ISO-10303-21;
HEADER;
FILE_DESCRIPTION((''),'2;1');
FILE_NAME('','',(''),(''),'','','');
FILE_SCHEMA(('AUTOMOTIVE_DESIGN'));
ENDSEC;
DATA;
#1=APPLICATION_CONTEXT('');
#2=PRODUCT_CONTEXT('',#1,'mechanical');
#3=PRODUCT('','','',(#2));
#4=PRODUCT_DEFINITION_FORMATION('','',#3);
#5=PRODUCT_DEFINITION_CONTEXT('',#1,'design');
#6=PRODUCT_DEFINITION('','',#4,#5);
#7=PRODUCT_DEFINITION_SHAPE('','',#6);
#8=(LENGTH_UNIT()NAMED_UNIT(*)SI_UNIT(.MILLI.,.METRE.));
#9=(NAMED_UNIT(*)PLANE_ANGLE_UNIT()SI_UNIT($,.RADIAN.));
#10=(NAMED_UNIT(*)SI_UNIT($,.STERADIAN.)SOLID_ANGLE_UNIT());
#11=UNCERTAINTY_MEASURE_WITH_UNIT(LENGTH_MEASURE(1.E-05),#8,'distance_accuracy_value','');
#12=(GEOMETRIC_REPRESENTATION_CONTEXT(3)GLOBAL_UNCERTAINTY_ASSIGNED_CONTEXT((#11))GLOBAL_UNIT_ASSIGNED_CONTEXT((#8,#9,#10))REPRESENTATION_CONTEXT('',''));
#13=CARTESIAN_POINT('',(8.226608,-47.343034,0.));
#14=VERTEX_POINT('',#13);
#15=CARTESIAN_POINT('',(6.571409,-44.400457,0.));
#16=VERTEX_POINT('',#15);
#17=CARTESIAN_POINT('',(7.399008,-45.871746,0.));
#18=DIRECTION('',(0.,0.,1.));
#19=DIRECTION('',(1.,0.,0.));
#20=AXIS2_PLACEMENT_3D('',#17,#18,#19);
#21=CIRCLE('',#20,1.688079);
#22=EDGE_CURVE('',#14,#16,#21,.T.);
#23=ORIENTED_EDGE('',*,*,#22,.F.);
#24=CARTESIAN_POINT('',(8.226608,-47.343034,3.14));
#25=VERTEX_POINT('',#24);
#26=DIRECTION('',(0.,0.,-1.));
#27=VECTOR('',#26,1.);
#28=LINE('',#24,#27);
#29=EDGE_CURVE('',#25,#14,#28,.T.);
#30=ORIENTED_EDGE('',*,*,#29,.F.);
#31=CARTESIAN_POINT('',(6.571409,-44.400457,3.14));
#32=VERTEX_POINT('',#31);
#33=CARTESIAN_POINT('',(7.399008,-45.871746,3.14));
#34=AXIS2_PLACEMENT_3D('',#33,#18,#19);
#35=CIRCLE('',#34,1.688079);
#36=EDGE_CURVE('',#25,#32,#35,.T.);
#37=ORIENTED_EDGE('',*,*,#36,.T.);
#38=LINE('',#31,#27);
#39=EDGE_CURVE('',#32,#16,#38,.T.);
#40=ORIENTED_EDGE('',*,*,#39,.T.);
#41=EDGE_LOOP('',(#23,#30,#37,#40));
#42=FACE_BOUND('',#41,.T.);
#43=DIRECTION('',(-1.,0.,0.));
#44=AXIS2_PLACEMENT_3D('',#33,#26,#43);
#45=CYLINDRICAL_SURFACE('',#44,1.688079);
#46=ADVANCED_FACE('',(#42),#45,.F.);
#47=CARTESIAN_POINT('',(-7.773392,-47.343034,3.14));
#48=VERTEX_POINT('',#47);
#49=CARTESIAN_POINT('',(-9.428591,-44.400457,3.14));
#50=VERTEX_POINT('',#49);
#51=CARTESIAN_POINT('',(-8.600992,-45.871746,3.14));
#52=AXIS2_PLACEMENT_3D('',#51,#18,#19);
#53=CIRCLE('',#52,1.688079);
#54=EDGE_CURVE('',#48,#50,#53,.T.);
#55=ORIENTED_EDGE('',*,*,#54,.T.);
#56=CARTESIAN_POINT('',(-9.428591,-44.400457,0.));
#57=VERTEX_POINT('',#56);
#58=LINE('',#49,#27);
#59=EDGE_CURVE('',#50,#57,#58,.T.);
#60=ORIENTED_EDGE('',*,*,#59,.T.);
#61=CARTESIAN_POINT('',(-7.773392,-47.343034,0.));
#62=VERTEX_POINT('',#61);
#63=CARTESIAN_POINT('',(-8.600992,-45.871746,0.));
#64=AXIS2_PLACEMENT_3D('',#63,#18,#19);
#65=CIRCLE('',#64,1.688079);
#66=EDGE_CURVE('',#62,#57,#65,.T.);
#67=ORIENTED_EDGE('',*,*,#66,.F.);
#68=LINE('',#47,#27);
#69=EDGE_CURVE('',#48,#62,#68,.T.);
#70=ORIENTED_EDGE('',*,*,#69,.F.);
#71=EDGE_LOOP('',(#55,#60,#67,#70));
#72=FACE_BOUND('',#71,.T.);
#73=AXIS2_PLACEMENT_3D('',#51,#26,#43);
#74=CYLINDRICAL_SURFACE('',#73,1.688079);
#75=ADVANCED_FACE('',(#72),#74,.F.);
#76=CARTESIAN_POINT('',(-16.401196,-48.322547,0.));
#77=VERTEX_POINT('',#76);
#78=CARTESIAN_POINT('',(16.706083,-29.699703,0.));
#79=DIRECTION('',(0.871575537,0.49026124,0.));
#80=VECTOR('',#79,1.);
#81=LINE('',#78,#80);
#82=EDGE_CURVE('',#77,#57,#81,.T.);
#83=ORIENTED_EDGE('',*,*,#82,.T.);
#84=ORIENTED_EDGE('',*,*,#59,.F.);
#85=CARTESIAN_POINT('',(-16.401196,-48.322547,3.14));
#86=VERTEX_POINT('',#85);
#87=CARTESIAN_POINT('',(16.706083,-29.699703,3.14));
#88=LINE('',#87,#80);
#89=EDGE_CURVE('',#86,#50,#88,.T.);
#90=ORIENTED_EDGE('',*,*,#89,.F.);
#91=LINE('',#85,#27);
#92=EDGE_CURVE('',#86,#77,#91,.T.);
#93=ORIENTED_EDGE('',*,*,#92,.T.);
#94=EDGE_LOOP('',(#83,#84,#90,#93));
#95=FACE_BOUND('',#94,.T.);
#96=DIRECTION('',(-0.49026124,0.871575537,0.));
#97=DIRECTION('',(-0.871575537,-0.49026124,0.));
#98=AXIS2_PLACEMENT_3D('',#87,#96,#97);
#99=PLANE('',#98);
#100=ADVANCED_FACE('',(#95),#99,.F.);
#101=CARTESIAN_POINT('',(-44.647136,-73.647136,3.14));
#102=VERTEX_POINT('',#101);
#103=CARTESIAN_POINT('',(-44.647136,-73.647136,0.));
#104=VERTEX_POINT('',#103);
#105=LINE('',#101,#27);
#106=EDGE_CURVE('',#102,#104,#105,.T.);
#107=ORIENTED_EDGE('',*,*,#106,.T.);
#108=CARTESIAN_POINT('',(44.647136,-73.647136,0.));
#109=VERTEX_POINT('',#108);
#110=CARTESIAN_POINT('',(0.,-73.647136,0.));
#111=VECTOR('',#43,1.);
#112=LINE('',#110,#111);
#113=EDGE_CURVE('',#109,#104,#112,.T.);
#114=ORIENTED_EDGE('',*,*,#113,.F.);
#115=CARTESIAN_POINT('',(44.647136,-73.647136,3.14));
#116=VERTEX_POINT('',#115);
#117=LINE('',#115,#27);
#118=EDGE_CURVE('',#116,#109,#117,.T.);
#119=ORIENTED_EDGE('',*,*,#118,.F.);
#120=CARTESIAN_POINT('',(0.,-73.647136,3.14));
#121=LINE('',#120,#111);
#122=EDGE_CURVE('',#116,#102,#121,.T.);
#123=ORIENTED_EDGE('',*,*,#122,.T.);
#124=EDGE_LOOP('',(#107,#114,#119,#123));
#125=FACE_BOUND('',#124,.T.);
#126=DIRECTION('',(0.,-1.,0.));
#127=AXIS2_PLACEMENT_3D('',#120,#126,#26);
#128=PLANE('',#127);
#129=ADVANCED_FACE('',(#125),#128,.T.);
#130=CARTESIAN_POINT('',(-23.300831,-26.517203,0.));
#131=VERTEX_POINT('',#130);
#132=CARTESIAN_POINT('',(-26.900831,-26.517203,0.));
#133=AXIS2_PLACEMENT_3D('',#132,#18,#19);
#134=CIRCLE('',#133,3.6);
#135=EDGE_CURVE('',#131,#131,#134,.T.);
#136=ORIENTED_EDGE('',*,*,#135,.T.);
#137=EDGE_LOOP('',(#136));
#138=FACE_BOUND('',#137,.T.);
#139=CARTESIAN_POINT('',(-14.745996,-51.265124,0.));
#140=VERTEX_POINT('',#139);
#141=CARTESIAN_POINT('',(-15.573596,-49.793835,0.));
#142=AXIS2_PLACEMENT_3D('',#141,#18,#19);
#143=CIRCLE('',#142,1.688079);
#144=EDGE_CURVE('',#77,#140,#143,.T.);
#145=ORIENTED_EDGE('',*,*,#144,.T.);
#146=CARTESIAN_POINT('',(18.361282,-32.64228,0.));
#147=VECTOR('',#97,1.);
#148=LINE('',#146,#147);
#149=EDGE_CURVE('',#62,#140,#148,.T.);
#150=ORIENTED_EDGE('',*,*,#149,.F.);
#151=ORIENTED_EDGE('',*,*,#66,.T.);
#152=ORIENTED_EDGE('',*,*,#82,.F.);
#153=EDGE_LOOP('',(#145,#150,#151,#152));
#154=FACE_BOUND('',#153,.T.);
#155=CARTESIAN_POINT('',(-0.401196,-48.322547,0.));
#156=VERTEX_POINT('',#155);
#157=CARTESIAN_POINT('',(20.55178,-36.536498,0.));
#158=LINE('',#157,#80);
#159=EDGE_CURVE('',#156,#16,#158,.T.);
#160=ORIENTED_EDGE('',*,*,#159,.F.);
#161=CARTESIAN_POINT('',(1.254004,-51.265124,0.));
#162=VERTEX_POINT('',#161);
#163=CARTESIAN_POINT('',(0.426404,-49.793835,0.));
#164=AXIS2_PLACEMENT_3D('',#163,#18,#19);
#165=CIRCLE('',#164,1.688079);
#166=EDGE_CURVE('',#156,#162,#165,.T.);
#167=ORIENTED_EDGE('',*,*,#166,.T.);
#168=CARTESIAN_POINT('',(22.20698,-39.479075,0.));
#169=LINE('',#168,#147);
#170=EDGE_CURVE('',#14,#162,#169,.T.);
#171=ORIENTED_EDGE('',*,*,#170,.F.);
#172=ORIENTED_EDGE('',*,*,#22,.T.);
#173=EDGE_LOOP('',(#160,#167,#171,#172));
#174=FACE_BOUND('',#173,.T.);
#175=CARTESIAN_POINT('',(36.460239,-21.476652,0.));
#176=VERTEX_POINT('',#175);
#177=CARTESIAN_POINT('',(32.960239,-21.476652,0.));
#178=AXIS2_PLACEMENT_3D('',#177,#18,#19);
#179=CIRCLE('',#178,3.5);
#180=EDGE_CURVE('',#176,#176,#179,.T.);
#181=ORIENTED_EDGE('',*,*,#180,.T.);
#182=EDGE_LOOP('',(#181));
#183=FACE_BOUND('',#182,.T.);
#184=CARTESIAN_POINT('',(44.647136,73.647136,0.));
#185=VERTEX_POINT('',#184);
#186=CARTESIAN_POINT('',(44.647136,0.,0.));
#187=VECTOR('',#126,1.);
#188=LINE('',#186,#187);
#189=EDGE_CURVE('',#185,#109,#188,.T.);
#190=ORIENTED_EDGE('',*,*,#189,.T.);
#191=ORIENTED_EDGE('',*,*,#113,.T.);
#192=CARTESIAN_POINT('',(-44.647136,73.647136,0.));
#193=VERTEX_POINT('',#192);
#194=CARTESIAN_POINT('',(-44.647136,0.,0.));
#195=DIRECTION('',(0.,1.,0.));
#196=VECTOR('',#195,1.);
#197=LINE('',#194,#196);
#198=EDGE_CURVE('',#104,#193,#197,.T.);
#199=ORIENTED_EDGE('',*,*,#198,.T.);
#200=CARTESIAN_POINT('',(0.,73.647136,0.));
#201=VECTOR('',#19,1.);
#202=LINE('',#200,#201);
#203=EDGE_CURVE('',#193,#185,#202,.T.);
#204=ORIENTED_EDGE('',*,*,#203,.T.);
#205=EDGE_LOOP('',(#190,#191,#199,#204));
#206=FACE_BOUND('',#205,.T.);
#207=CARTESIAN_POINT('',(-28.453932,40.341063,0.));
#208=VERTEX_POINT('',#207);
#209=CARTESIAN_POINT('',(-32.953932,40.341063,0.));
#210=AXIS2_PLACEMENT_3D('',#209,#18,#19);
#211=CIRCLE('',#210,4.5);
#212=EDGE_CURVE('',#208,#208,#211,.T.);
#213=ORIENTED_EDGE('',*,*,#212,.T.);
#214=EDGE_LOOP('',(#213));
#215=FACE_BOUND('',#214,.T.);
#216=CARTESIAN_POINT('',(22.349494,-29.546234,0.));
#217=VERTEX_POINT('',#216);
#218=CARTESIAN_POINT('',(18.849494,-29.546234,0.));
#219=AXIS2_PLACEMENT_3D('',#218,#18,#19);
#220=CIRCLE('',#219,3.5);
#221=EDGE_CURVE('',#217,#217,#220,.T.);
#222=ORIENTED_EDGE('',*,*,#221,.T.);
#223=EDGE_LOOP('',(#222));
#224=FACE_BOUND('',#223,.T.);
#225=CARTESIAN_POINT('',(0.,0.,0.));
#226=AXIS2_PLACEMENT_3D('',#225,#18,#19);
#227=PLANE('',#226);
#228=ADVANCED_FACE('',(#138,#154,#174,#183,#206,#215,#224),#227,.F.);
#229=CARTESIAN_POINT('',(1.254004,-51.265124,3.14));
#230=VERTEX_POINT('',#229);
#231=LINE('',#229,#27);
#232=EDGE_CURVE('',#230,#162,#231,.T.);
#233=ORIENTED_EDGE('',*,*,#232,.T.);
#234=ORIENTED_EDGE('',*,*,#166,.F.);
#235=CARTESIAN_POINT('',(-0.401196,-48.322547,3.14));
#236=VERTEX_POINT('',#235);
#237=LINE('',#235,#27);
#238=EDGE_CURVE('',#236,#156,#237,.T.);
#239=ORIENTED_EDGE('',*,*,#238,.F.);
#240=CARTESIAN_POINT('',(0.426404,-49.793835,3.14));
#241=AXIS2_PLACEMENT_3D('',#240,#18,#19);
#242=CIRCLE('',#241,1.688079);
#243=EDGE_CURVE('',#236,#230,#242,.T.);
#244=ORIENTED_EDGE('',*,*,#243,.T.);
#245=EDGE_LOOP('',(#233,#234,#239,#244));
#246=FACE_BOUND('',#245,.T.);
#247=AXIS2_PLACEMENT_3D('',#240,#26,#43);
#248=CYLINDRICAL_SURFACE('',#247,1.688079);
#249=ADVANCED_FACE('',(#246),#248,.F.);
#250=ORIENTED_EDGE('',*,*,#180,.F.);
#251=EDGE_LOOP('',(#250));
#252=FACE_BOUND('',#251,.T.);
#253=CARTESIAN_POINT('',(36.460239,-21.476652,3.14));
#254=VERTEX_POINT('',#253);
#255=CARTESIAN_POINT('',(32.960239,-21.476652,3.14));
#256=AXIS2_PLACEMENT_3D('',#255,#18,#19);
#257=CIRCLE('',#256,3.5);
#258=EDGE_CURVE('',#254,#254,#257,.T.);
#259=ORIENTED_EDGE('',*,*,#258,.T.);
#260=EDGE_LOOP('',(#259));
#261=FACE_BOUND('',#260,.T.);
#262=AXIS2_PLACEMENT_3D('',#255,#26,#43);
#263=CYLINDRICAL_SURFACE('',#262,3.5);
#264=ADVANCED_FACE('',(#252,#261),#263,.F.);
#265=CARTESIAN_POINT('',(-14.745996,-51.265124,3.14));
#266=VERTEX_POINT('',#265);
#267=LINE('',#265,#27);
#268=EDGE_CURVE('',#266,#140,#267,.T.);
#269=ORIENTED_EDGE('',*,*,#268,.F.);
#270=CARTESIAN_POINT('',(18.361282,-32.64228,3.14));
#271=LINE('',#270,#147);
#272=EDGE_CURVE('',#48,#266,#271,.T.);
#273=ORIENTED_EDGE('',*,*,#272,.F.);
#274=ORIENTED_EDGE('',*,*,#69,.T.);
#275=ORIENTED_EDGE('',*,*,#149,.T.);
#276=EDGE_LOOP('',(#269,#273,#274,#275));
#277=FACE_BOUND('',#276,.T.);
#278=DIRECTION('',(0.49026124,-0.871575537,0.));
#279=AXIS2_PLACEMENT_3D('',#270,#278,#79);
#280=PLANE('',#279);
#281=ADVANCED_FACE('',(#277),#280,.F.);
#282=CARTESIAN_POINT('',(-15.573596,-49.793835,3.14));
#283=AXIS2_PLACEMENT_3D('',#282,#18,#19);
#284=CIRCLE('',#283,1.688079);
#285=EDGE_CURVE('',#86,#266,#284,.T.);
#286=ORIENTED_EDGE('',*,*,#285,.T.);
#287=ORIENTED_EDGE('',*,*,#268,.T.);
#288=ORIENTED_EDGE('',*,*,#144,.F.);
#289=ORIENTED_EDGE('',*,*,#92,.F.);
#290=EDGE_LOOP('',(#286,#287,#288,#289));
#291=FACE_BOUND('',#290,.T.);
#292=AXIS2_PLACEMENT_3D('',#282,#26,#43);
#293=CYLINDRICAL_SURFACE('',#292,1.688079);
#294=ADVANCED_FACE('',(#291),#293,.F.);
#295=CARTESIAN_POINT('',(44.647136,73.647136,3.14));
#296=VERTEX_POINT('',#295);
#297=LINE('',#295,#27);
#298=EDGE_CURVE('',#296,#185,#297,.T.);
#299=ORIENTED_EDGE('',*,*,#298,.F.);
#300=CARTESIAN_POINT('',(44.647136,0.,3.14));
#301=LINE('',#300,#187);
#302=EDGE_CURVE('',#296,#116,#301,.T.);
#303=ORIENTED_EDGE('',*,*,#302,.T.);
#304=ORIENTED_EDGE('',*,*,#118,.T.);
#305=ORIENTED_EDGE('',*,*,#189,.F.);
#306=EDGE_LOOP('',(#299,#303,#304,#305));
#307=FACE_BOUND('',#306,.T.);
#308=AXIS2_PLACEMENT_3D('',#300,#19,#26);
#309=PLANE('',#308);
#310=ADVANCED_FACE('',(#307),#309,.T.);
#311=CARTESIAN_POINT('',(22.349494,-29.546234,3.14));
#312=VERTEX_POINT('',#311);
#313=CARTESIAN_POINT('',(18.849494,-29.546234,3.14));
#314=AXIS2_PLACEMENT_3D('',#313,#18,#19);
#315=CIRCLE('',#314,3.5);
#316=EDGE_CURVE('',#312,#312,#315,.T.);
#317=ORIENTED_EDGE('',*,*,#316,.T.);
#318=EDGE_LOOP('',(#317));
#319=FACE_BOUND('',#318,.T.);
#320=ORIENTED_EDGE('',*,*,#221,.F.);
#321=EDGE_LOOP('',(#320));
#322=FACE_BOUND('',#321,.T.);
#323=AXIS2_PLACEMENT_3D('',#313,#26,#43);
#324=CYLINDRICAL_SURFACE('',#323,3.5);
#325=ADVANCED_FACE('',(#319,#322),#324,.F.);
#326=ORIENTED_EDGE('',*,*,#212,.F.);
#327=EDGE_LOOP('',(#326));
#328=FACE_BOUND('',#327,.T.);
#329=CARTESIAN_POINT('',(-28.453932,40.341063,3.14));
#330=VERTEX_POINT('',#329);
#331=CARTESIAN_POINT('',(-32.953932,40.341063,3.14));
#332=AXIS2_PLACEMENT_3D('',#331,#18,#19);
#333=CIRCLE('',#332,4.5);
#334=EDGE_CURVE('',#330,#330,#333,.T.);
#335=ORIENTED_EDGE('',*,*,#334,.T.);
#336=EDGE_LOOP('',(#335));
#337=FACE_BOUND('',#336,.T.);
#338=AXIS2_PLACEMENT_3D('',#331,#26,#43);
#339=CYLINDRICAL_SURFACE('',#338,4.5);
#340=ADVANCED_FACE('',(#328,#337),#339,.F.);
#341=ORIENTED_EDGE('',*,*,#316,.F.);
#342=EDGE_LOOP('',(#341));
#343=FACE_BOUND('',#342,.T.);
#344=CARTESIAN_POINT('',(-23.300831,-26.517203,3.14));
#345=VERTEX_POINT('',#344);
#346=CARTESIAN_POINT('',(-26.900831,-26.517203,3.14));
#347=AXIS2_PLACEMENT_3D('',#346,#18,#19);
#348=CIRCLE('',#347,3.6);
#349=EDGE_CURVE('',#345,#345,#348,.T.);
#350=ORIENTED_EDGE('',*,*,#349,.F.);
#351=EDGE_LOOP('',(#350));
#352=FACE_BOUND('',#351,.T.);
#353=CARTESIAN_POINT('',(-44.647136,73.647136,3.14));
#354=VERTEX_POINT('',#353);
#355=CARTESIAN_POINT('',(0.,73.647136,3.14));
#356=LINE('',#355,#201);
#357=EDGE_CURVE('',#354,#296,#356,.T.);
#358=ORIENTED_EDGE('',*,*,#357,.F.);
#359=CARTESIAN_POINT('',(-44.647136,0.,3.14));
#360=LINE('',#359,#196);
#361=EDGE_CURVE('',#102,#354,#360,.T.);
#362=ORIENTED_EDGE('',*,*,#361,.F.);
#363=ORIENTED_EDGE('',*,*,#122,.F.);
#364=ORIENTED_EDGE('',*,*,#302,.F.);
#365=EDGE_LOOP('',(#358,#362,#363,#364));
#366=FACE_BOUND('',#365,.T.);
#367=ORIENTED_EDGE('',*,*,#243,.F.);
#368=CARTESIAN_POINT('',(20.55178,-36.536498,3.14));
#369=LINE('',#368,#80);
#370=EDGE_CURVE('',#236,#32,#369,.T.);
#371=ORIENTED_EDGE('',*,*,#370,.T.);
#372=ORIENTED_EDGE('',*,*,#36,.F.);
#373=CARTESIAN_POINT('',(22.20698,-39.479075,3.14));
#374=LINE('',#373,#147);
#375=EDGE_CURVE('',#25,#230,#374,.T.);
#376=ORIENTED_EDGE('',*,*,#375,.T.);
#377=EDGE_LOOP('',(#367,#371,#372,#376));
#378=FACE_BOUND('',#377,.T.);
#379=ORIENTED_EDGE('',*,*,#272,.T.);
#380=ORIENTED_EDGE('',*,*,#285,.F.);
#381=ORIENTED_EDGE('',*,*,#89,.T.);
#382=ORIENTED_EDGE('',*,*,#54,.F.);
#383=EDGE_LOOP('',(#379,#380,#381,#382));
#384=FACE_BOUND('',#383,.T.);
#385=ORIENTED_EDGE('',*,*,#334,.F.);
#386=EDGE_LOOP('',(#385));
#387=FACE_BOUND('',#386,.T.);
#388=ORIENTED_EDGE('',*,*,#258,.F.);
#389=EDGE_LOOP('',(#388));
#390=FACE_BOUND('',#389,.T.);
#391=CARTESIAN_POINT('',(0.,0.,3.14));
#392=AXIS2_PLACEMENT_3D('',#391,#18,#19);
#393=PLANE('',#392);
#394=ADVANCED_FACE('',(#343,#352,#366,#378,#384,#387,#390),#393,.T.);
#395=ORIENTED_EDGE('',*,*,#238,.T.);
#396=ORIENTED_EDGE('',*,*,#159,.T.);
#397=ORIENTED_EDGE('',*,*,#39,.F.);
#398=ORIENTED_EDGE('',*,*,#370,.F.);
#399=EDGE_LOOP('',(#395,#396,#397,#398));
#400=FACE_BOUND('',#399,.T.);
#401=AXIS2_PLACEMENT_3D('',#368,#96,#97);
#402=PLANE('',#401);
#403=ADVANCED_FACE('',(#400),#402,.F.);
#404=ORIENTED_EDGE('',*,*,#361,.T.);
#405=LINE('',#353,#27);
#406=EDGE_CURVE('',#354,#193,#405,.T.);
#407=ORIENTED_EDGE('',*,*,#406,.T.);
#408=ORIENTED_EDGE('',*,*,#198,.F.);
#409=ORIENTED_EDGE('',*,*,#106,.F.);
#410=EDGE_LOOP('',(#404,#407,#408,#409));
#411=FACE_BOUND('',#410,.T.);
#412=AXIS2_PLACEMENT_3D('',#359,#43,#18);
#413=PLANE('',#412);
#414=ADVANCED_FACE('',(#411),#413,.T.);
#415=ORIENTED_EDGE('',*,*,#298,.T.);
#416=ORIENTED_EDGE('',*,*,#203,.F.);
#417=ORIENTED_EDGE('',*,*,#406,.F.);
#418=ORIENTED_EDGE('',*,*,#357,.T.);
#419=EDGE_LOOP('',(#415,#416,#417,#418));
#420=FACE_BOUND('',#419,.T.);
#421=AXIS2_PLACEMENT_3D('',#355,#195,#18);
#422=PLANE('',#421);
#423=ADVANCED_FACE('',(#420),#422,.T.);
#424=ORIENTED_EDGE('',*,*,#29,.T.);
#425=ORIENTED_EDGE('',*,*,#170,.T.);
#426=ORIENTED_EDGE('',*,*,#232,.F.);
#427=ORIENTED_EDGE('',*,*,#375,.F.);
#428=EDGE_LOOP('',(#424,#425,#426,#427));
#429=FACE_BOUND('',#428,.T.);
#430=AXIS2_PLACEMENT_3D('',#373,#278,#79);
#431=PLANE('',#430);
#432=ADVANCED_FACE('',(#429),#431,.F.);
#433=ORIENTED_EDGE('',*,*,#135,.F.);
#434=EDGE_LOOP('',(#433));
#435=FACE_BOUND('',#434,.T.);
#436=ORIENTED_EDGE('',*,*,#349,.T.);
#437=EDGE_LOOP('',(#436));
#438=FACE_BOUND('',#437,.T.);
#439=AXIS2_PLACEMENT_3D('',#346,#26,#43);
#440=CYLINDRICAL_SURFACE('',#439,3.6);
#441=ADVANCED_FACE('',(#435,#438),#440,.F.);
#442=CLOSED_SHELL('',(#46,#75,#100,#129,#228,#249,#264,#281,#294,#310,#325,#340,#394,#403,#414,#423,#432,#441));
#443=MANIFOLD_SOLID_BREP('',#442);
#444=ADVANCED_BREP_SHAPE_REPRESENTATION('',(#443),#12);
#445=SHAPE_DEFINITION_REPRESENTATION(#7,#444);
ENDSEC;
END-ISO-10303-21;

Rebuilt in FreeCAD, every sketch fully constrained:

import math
import FreeCAD as App
import Part
import Sketcher
from FreeCAD import Vector
Q = App.Units.Quantity

doc = App.newDocument("Part")
body = doc.addObject("PartDesign::Body", "Body")

sketch1 = body.newObject("Sketcher::SketchObject", "Sketch")
sketch1.AttachmentSupport = (doc.getObject("XY_Plane"), [""])
sketch1.MapMode = "FlatFace"
sketch1.addGeometry(Part.LineSegment(Vector(-44.6, 73.6, 0), Vector(-44.6, -73.6, 0)), False)
sketch1.addGeometry(Part.LineSegment(Vector(-44.6, -73.6, 0), Vector(44.6, -73.6, 0)), False)
sketch1.addGeometry(Part.LineSegment(Vector(44.6, -73.6, 0), Vector(44.6, 73.6, 0)), False)
sketch1.addGeometry(Part.LineSegment(Vector(44.6, 73.6, 0), Vector(-44.6, 73.6, 0)), False)
sketch1.addGeometry(Part.LineSegment(Vector(-7.8, -47.3, 0), Vector(-14.7, -51.3, 0)), False)
sketch1.addGeometry(Part.ArcOfCircle(Part.Circle(Vector(-15.6, -49.8, 0), Vector(0, 0, 1), 1.7), math.radians(119), math.radians(299)), False)
sketch1.addGeometry(Part.LineSegment(Vector(-16.4, -48.3, 0), Vector(-9.4, -44.4, 0)), False)
sketch1.addGeometry(Part.ArcOfCircle(Part.Circle(Vector(-8.6, -45.9, 0), Vector(0, 0, 1), 1.7), math.radians(-61), math.radians(119)), False)
sketch1.addGeometry(Part.LineSegment(Vector(8.2, -47.3, 0), Vector(1.3, -51.3, 0)), False)
sketch1.addGeometry(Part.ArcOfCircle(Part.Circle(Vector(0.4, -49.8, 0), Vector(0, 0, 1), 1.7), math.radians(119), math.radians(299)), False)
sketch1.addGeometry(Part.LineSegment(Vector(-0.4, -48.3, 0), Vector(6.6, -44.4, 0)), False)
sketch1.addGeometry(Part.ArcOfCircle(Part.Circle(Vector(7.4, -45.9, 0), Vector(0, 0, 1), 1.7), math.radians(-61), math.radians(119)), False)
sketch1.addGeometry(Part.Circle(Vector(-26.9, -26.5, 0), Vector(0, 0, 1), 3.6), False)
sketch1.addGeometry(Part.Circle(Vector(18.8, -29.5, 0), Vector(0, 0, 1), 3.5), False)
sketch1.addGeometry(Part.Circle(Vector(33, -21.5, 0), Vector(0, 0, 1), 3.5), False)
sketch1.addGeometry(Part.Circle(Vector(-33, 40.3, 0), Vector(0, 0, 1), 4.5), False)
sketch1.addConstraint(Sketcher.Constraint("Coincident", 0, 2, 1, 1))
sketch1.addConstraint(Sketcher.Constraint("Coincident", 1, 2, 2, 1))
sketch1.addConstraint(Sketcher.Constraint("Coincident", 2, 2, 3, 1))
sketch1.addConstraint(Sketcher.Constraint("Coincident", 3, 2, 0, 1))
sketch1.addConstraint(Sketcher.Constraint("Tangent", 4, 2, 5, 2))
sketch1.addConstraint(Sketcher.Constraint("Tangent", 5, 1, 6, 1))
sketch1.addConstraint(Sketcher.Constraint("Tangent", 6, 2, 7, 2))
sketch1.addConstraint(Sketcher.Constraint("Tangent", 7, 1, 4, 1))
sketch1.addConstraint(Sketcher.Constraint("Tangent", 8, 2, 9, 2))
sketch1.addConstraint(Sketcher.Constraint("Tangent", 9, 1, 10, 1))
sketch1.addConstraint(Sketcher.Constraint("Tangent", 10, 2, 11, 2))
sketch1.addConstraint(Sketcher.Constraint("Tangent", 11, 1, 8, 1))
sketch1.addConstraint(Sketcher.Constraint("Vertical", 0))
sketch1.addConstraint(Sketcher.Constraint("Horizontal", 1))
sketch1.addConstraint(Sketcher.Constraint("Vertical", 2))
sketch1.addConstraint(Sketcher.Constraint("Horizontal", 3))
sketch1.addConstraint(Sketcher.Constraint("Equal", 5, 7))
sketch1.addConstraint(Sketcher.Constraint("Equal", 7, 9))
sketch1.addConstraint(Sketcher.Constraint("Equal", 9, 11))
sketch1.addConstraint(Sketcher.Constraint("Equal", 13, 14))
sketch1.addConstraint(Sketcher.Constraint("Symmetric", 0, 2, 2, 2, -1, 1))
sketch1.addConstraint(Sketcher.Constraint("Parallel", 6, 8))
sketch1.addConstraint(Sketcher.Constraint("Horizontal", 5, 3, 9, 3))
sketch1.addConstraint(Sketcher.Constraint("Horizontal", 7, 3, 11, 3))
sketch1.addConstraint(Sketcher.Constraint("Diameter", 13, Q("7 mm")))
sketch1.addConstraint(Sketcher.Constraint("Diameter", 15, Q("9 mm")))
sketch1.addConstraint(Sketcher.Constraint("Diameter", 12, Q("7.2 mm")))
sketch1.addConstraint(Sketcher.Constraint("Distance", 4, Q("8 mm")))
sketch1.addConstraint(Sketcher.Constraint("DistanceX", 5, 3, 9, 3, Q("16 mm")))
sketch1.addConstraint(Sketcher.Constraint("Radius", 5, Q("1.688079 mm")))
sketch1.addConstraint(Sketcher.Constraint("DistanceY", 9, 3, 13, 3, Q("20.247601 mm")))
sketch1.addConstraint(Sketcher.Constraint("DistanceX", 15, 3, 12, 3, Q("6.053101 mm")))
sketch1.addConstraint(Sketcher.Constraint("DistanceY", 5, 3, 15, 3, Q("90.134899 mm")))
sketch1.addConstraint(Sketcher.Constraint("DistanceY", 0, 2, 5, 3, Q("23.853301 mm")))
sketch1.addConstraint(Sketcher.Constraint("DistanceX", 5, 3, 4, 2, Q("0.8276 mm")))
sketch1.addConstraint(Sketcher.Constraint("DistanceX", 1, 1, 1, 2, Q("89.294272 mm")))
sketch1.addConstraint(Sketcher.Constraint("DistanceY", 0, 2, 0, 1, Q("147.294272 mm")))
sketch1.addConstraint(Sketcher.Constraint("DistanceX", 7, 3, -1, 1, Q("8.600992 mm")))
sketch1.addConstraint(Sketcher.Constraint("DistanceX", 12, 3, -1, 1, Q("26.900831 mm")))
sketch1.addConstraint(Sketcher.Constraint("DistanceX", -1, 1, 14, 3, Q("32.960239 mm")))
sketch1.addConstraint(Sketcher.Constraint("DistanceX", 9, 3, 13, 3, Q("18.42309 mm")))
sketch1.addConstraint(Sketcher.Constraint("DistanceY", 13, 3, 12, 3, Q("3.029032 mm")))
sketch1.addConstraint(Sketcher.Constraint("DistanceY", 14, 3, 2, 2, Q("95.123788 mm")))
pad1 = body.newObject("PartDesign::Pad", "Pad")
pad1.Profile = sketch1
pad1.Length = 3.14

doc.recompute()
